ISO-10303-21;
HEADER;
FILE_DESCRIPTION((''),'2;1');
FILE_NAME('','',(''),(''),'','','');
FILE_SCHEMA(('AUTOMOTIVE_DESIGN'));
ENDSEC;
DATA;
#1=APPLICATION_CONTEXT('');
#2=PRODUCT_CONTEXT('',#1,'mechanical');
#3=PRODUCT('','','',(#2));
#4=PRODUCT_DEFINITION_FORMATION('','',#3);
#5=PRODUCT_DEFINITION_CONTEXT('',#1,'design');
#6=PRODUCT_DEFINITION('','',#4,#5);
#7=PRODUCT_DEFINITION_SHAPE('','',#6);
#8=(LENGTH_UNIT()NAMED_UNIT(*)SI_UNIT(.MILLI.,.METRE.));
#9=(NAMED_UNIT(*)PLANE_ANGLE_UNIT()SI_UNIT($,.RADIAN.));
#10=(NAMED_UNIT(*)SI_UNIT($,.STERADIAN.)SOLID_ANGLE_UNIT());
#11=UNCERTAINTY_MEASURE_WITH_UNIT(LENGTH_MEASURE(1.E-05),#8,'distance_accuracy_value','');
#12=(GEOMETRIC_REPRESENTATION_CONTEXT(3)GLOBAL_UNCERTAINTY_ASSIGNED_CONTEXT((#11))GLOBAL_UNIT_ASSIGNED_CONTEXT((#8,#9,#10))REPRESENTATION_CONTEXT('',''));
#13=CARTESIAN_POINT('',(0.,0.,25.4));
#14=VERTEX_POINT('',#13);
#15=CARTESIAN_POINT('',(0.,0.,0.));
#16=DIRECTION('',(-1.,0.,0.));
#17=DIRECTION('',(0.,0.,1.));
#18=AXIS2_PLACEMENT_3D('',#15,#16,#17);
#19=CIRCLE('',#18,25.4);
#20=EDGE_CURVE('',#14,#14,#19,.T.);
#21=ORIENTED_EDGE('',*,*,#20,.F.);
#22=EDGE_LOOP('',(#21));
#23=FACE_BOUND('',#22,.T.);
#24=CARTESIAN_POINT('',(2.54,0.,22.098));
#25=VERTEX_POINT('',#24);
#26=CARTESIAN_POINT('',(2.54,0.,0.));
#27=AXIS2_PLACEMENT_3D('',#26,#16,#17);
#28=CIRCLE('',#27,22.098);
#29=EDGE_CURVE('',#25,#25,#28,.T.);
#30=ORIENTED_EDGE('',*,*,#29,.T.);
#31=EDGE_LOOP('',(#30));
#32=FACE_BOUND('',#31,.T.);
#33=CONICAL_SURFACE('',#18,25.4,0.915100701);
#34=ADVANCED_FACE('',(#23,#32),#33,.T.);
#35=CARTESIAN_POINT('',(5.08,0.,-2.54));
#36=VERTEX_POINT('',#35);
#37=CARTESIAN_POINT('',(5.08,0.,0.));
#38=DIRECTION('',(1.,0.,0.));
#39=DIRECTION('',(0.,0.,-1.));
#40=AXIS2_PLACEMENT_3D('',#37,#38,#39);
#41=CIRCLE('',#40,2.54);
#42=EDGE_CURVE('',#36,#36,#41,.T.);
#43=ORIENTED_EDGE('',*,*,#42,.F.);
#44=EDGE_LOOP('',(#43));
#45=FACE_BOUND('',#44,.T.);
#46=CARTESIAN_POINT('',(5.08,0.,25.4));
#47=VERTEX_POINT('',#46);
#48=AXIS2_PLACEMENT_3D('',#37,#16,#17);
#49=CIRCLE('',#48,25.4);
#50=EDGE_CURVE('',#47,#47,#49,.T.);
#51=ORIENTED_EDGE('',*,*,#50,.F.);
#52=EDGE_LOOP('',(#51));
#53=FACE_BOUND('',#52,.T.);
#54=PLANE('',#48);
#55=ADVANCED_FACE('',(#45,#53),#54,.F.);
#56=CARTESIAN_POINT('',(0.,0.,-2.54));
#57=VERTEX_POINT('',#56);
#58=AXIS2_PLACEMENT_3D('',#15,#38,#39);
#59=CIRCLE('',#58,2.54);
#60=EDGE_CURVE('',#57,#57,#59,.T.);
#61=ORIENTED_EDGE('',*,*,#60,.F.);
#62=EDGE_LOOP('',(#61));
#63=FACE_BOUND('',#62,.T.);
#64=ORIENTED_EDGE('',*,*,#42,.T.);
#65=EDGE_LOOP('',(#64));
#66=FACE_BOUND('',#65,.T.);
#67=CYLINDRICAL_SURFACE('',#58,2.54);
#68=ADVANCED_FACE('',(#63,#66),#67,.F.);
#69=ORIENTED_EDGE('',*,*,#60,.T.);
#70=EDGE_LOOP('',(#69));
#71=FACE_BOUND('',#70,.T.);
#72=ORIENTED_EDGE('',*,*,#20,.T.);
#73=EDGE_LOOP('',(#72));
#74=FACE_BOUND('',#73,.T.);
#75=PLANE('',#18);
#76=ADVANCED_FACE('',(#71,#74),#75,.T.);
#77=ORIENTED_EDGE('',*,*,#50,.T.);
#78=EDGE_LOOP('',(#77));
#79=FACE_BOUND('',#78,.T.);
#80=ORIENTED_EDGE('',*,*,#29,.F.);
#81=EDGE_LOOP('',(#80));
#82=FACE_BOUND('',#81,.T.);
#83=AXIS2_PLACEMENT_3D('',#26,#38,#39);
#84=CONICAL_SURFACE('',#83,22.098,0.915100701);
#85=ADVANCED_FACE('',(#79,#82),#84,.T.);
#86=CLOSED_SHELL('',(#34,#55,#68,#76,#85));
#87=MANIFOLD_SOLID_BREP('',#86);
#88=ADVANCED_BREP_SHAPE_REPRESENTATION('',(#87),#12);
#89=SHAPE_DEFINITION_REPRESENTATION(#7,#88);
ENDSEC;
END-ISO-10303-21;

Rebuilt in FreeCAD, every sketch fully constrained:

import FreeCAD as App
import Part
import Sketcher

V = App.Vector
Q = App.Units.Quantity

doc = App.newDocument("Part")
params = doc.addObject("Spreadsheet::Sheet", "Params")
for row, (alias, value) in enumerate([
    ("sketch1_height", "1 in"),
    ("sketch1_width", "0.2 in"),
    ("revolution_angle", "360 deg"),
    ("sketch2_diameter", "0.2 in"),
], start=1):
    params.set(f"A{row}", alias)
    params.set(f"B{row}", "=" + value)
    params.setAlias(f"B{row}", alias)

body = doc.addObject("PartDesign::Body", "Body")

sketch1 = body.newObject("Sketcher::SketchObject", "Sketch")
sketch1.AttachmentSupport = (doc.getObject("XZ_Plane"), [""])
sketch1.MapMode = "FlatFace"
sketch1.addGeometry([
    Part.LineSegment(V(5.1, -25.4, 0), V(2.5, -22.1, 0)),
    Part.LineSegment(V(2.5, -22.1, 0), V(0, -25.4, 0)),
    Part.LineSegment(V(0, -25.4, 0), V(0, 0, 0)),
    Part.LineSegment(V(0, 0, 0), V(5.1, 0, 0)),
    Part.LineSegment(V(5.1, 0, 0), V(5.1, -25.4, 0)),
], False)
sketch1.addConstraint([
    Sketcher.Constraint("Coincident", 0, 2, 1, 1),
    Sketcher.Constraint("Coincident", 1, 2, 2, 1),
    Sketcher.Constraint("Coincident", 2, 2, 3, 1),
    Sketcher.Constraint("Coincident", 3, 2, 4, 1),
    Sketcher.Constraint("Coincident", 4, 2, 0, 1),
    Sketcher.Constraint("Vertical", 2),
    Sketcher.Constraint("Horizontal", 3),
    Sketcher.Constraint("Vertical", 4),
    Sketcher.Constraint("Coincident", 2, 2, -1, 1),
    Sketcher.Constraint("Horizontal", 1, 2, 4, 2),
    Sketcher.Constraint("Equal", 0, 1),
    Sketcher.Constraint("DistanceY", 2, 1, 2, 2, Q("1 in")),
    Sketcher.Constraint("DistanceX", 3, 1, 3, 2, Q("0.2 in")),
    Sketcher.Constraint("DistanceY", 0, 2, -1, 1, Q("0.87 in")),
])
sketch1.setExpression("Constraints[11]", "Params.sketch1_height")
sketch1.setExpression("Constraints[12]", "Params.sketch1_width")
revolution = body.newObject("PartDesign::Revolution", "Revolution")
revolution.Profile = sketch1
revolution.ReferenceAxis = (sketch1, ["H_Axis"])
revolution.setExpression("Angle", "Params.revolution_angle")

sketch2 = body.newObject("Sketcher::SketchObject", "Sketch001")
sketch2.AttachmentSupport = (doc.getObject("YZ_Plane"), [""])
sketch2.MapMode = "FlatFace"
sketch2.AttachmentOffset = App.Placement(V(0, 0, 0.2 * 25.4), App.Rotation())
sketch2.addGeometry(Part.Circle(V(0, 0, 0), V(0, 0, 1), 2.5), False)
sketch2.addConstraint([
    Sketcher.Constraint("Coincident", 0, 3, -1, 1),
    Sketcher.Constraint("Diameter", 0, Q("0.2 in")),
])
sketch2.setExpression("Constraints[1]", "Params.sketch2_diameter")
pocket1 = body.newObject("PartDesign::Pocket", "Pocket")
pocket1.Profile = sketch2
pocket1.Type = "ThroughAll"

doc.recompute()
